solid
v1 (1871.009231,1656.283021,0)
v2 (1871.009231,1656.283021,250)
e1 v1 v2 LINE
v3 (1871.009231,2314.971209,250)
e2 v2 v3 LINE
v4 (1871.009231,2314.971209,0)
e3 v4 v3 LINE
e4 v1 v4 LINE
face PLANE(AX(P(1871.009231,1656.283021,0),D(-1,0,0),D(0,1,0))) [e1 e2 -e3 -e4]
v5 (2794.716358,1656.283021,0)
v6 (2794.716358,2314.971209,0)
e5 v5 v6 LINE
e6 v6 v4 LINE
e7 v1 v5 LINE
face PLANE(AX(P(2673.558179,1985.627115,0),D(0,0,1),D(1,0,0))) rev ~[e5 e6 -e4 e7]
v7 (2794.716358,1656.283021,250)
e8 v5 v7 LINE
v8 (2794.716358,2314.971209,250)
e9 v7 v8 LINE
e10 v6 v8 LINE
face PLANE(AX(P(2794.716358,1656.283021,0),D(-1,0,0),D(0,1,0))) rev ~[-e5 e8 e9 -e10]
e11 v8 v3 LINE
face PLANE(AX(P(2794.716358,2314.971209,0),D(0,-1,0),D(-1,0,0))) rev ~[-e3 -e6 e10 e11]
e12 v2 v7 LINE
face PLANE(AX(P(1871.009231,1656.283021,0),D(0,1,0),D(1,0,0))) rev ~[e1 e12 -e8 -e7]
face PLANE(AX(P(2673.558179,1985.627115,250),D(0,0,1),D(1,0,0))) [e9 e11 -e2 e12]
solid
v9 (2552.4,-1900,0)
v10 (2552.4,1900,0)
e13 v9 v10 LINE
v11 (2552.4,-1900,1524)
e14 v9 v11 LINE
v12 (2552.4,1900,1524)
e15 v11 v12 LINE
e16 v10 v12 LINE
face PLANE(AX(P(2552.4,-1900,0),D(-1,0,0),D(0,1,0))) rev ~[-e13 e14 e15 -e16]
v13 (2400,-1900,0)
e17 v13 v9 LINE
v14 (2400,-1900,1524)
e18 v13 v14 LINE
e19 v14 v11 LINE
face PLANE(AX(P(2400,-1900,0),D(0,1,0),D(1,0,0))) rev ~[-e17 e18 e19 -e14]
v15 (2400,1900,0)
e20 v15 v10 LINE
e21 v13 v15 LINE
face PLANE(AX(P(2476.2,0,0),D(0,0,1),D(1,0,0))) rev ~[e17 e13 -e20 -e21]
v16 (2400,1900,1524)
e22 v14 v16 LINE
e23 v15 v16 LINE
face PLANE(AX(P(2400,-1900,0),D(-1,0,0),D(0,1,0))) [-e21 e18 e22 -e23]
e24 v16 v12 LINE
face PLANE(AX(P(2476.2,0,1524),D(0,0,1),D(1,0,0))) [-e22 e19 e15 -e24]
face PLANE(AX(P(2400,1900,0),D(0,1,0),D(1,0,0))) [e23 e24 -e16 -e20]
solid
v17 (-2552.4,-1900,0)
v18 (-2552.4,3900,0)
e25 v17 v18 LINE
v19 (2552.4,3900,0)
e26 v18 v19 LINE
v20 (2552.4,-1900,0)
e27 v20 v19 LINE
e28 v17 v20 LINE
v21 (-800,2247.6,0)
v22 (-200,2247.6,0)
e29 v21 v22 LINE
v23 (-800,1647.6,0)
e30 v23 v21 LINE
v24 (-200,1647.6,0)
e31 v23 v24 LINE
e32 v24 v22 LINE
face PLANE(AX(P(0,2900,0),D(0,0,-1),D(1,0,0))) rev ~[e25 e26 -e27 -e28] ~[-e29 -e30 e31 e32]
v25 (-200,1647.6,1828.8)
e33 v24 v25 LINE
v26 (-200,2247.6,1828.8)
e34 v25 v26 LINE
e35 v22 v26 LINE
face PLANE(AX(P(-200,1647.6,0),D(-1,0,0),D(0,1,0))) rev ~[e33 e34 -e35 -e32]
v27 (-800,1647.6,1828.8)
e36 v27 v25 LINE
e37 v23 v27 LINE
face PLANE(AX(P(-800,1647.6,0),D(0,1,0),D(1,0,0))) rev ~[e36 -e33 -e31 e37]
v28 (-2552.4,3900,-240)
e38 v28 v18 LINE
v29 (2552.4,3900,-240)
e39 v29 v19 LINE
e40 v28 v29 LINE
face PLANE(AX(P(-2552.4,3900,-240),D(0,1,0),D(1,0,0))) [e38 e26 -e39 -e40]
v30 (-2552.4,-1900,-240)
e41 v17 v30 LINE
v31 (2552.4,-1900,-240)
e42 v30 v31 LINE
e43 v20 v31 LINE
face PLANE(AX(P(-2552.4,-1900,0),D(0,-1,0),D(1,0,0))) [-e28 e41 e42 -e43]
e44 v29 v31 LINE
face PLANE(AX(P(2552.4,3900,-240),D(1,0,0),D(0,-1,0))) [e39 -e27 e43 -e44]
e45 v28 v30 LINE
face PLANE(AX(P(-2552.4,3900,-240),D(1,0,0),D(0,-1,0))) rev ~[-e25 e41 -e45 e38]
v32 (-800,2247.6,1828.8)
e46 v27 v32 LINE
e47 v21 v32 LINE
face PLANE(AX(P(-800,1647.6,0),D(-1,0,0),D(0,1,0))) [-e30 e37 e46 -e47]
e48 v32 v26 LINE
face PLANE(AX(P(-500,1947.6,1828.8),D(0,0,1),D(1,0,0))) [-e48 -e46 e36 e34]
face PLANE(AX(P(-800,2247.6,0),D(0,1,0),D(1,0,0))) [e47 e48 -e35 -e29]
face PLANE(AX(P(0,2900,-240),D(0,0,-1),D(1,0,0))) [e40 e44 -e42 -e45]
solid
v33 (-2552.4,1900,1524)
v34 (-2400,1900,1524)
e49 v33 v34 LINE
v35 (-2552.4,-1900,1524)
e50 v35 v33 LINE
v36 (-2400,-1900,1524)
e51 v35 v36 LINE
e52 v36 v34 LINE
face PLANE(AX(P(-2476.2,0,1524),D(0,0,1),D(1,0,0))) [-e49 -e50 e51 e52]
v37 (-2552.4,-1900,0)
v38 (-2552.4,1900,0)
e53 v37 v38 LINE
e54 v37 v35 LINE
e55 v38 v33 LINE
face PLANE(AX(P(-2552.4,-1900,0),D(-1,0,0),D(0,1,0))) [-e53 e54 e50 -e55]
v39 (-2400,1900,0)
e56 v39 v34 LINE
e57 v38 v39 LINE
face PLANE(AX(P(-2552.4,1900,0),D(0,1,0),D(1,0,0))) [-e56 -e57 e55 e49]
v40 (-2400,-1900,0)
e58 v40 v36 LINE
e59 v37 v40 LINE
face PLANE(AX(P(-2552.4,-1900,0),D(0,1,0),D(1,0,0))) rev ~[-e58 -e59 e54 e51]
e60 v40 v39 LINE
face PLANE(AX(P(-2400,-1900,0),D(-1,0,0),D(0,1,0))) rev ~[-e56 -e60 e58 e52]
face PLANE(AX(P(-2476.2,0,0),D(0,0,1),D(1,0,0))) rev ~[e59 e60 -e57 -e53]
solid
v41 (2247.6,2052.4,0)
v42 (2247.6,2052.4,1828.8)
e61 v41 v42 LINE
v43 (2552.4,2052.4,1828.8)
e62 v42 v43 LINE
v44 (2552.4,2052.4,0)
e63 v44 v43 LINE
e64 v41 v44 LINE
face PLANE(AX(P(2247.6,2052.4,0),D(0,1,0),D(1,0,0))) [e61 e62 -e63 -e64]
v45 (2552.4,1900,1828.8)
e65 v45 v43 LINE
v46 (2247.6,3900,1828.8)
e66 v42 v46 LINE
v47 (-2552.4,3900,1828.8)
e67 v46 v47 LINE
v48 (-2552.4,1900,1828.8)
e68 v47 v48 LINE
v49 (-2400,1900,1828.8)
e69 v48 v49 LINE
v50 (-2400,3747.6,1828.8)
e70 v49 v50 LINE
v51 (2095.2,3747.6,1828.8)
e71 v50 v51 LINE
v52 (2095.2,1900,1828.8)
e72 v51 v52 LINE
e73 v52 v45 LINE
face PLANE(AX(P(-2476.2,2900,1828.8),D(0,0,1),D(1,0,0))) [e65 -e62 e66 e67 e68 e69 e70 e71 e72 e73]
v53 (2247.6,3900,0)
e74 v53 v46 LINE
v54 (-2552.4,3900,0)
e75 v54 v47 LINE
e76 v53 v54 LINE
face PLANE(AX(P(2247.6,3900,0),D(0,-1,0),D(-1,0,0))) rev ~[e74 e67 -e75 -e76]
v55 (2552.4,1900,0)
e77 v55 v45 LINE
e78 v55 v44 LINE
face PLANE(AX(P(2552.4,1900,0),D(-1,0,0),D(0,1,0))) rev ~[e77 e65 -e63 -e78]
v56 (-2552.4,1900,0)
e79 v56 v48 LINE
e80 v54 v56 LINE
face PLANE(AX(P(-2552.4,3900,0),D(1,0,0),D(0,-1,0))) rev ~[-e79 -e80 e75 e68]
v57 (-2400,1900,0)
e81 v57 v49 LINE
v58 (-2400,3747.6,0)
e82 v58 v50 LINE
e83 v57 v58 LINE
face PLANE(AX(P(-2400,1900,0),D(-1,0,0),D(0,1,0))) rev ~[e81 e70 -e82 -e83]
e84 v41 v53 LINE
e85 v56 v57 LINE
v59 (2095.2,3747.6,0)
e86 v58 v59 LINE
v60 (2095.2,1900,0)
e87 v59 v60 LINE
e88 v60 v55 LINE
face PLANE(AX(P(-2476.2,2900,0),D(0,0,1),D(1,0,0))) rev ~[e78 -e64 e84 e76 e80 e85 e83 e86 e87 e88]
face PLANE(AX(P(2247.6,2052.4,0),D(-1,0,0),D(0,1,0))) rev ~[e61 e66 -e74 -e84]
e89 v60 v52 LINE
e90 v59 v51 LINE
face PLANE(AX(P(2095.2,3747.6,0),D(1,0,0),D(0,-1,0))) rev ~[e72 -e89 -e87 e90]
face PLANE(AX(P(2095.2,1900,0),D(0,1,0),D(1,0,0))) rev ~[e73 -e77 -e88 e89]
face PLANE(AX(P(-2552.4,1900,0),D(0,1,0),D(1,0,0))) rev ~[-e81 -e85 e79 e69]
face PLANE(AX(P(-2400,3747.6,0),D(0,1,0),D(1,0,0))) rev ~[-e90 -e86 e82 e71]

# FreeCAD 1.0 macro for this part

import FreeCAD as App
import Part
import Sketcher
from FreeCAD import Vector

doc = App.newDocument("Part")
body = doc.addObject("PartDesign::Body", "Body")

sketch1 = body.newObject("Sketcher::SketchObject", "Sketch")
sketch1.AttachmentSupport = (doc.getObject("XY_Plane"), [""])
sketch1.MapMode = "FlatFace"
sketch1.addGeometry(Part.LineSegment(Vector(-2552, 1900, 0), Vector(-2552, -1900, 0)), False)
sketch1.addGeometry(Part.LineSegment(Vector(-2552, -1900, 0), Vector(-2400, -1900, 0)), False)
sketch1.addGeometry(Part.LineSegment(Vector(-2400, -1900, 0), Vector(-2400, 1900, 0)), False)
sketch1.addGeometry(Part.LineSegment(Vector(-2400, 1900, 0), Vector(-2552, 1900, 0)), False)
sketch1.addConstraint(Sketcher.Constraint("Coincident", 0, 2, 1, 1))
sketch1.addConstraint(Sketcher.Constraint("Coincident", 1, 2, 2, 1))
sketch1.addConstraint(Sketcher.Constraint("Coincident", 2, 2, 3, 1))
sketch1.addConstraint(Sketcher.Constraint("Coincident", 3, 2, 0, 1))
sketch1.addConstraint(Sketcher.Constraint("Vertical", 0))
sketch1.addConstraint(Sketcher.Constraint("Horizontal", 1))
sketch1.addConstraint(Sketcher.Constraint("Vertical", 2))
sketch1.addConstraint(Sketcher.Constraint("Horizontal", 3))
sketch1.addConstraint(Sketcher.Constraint("DistanceY", 0, 2, 0, 1, 3800.0))
sketch1.addConstraint(Sketcher.Constraint("DistanceX", 1, 1, 1, 2, 152.4))
sketch1.addConstraint(Sketcher.Constraint("DistanceY", 0, 2, -1, 1, 1900.0))
sketch1.addConstraint(Sketcher.Constraint("DistanceX", 1, 2, -1, 1, 2400.0))
pad1 = body.newObject("PartDesign::Pad", "Pad")
pad1.Profile = sketch1
pad1.Length = 1524
body2 = doc.addObject("PartDesign::Body", "Body001")

sketch2 = body2.newObject("Sketcher::SketchObject", "Sketch001")
sketch2.AttachmentSupport = (doc.getObject("XY_Plane001"), [""])
sketch2.MapMode = "FlatFace"
sketch2.addGeometry(Part.LineSegment(Vector(2400, 1900, 0), Vector(2400, -1900, 0)), False)
sketch2.addGeometry(Part.LineSegment(Vector(2400, -1900, 0), Vector(2552, -1900, 0)), False)
sketch2.addGeometry(Part.LineSegment(Vector(2552, -1900, 0), Vector(2552, 1900, 0)), False)
sketch2.addGeometry(Part.LineSegment(Vector(2552, 1900, 0), Vector(2400, 1900, 0)), False)
sketch2.addConstraint(Sketcher.Constraint("Coincident", 0, 2, 1, 1))
sketch2.addConstraint(Sketcher.Constraint("Coincident", 1, 2, 2, 1))
sketch2.addConstraint(Sketcher.Constraint("Coincident", 2, 2, 3, 1))
sketch2.addConstraint(Sketcher.Constraint("Coincident", 3, 2, 0, 1))
sketch2.addConstraint(Sketcher.Constraint("Vertical", 0))
sketch2.addConstraint(Sketcher.Constraint("Horizontal", 1))
sketch2.addConstraint(Sketcher.Constraint("Vertical", 2))
sketch2.addConstraint(Sketcher.Constraint("Horizontal", 3))
sketch2.addConstraint(Sketcher.Constraint("DistanceY", 0, 2, 0, 1, 3800.0))
sketch2.addConstraint(Sketcher.Constraint("DistanceX", 1, 1, 1, 2, 152.4))
sketch2.addConstraint(Sketcher.Constraint("DistanceX", -1, 1, 0, 2, 2400.0))
sketch2.addConstraint(Sketcher.Constraint("DistanceY", 0, 2, -1, 1, 1900.0))
pad2 = body2.newObject("PartDesign::Pad", "Pad001")
pad2.Profile = sketch2
pad2.Length = 1524
body3 = doc.addObject("PartDesign::Body", "Body002")

sketch3 = body3.newObject("Sketcher::SketchObject", "Sketch002")
sketch3.AttachmentSupport = (doc.getObject("XY_Plane002"), [""])
sketch3.MapMode = "FlatFace"
sketch3.addGeometry(Part.LineSegment(Vector(-2552, -1900, 0), Vector(-2552, 1900, 0)), False)
sketch3.addGeometry(Part.LineSegment(Vector(-2552, 1900, 0), Vector(2552, 1900, 0)), False)
sketch3.addGeometry(Part.LineSegment(Vector(2552, 1900, 0), Vector(2552, -1900, 0)), False)
sketch3.addGeometry(Part.LineSegment(Vector(2552, -1900, 0), Vector(-2552, -1900, 0)), False)
sketch3.addConstraint(Sketcher.Constraint("Coincident", 0, 2, 1, 1))
sketch3.addConstraint(Sketcher.Constraint("Coincident", 1, 2, 2, 1))
sketch3.addConstraint(Sketcher.Constraint("Coincident", 2, 2, 3, 1))
sketch3.addConstraint(Sketcher.Constraint("Coincident", 3, 2, 0, 1))
sketch3.addConstraint(Sketcher.Constraint("Vertical", 0))
sketch3.addConstraint(Sketcher.Constraint("Horizontal", 1))
sketch3.addConstraint(Sketcher.Constraint("Vertical", 2))
sketch3.addConstraint(Sketcher.Constraint("Horizontal", 3))
sketch3.addConstraint(Sketcher.Constraint("Symmetric", 0, 2, 2, 2, -1, 1))
sketch3.addConstraint(Sketcher.Constraint("DistanceY", 0, 1, 0, 2, 3800.0))
sketch3.addConstraint(Sketcher.Constraint("DistanceX", 1, 1, 1, 2, 5104.8))
pad3 = body3.newObject("PartDesign::Pad", "Pad002")
pad3.Profile = sketch3
pad3.Length = 240
pad3.Reversed = True

sketch4 = body3.newObject("Sketcher::SketchObject", "Sketch003")
sketch4.AttachmentSupport = (doc.getObject("XY_Plane002"), [""])
sketch4.MapMode = "FlatFace"
sketch4.AttachmentOffset = App.Placement(Vector(0, 0, -240), App.Rotation())
sketch4.addGeometry(Part.LineSegment(Vector(-2552, 1900, 0), Vector(-2552, 3900, 0)), False)
sketch4.addGeometry(Part.LineSegment(Vector(-2552, 3900, 0), Vector(2552, 3900, 0)), False)
sketch4.addGeometry(Part.LineSegment(Vector(2552, 3900, 0), Vector(2552, 1900, 0)), False)
sketch4.addGeometry(Part.LineSegment(Vector(2552, 1900, 0), Vector(-2552, 1900, 0)), False)
sketch4.addConstraint(Sketcher.Constraint("Coincident", 0, 2, 1, 1))
sketch4.addConstraint(Sketcher.Constraint("Coincident", 1, 2, 2, 1))
sketch4.addConstraint(Sketcher.Constraint("Coincident", 2, 2, 3, 1))
sketch4.addConstraint(Sketcher.Constraint("Coincident", 3, 2, 0, 1))
sketch4.addConstraint(Sketcher.Constraint("Vertical", 0))
sketch4.addConstraint(Sketcher.Constraint("Horizontal", 1))
sketch4.addConstraint(Sketcher.Constraint("Vertical", 2))
sketch4.addConstraint(Sketcher.Constraint("Horizontal", 3))
sketch4.addConstraint(Sketcher.Constraint("DistanceY", 0, 1, 0, 2, 2000.0))
sketch4.addConstraint(Sketcher.Constraint("DistanceX", 1, 1, 1, 2, 5104.8))
sketch4.addConstraint(Sketcher.Constraint("DistanceY", -1, 1, 0, 2, 3900.0))
sketch4.addConstraint(Sketcher.Constraint("DistanceX", 0, 2, -1, 1, 2552.4))
pad4 = body3.newObject("PartDesign::Pad", "Pad003")
pad4.Profile = sketch4
pad4.Length = 240

sketch5 = body3.newObject("Sketcher::SketchObject", "Sketch004")
sketch5.AttachmentSupport = (doc.getObject("XY_Plane002"), [""])
sketch5.MapMode = "FlatFace"
sketch5.addGeometry(Part.LineSegment(Vector(-800, 2248, 0), Vector(-800, 1648, 0)), False)
sketch5.addGeometry(Part.LineSegment(Vector(-800, 1648, 0), Vector(-200, 1648, 0)), False)
sketch5.addGeometry(Part.LineSegment(Vector(-200, 1648, 0), Vector(-200, 2248, 0)), False)
sketch5.addGeometry(Part.LineSegment(Vector(-200, 2248, 0), Vector(-800, 2248, 0)), False)
sketch5.addConstraint(Sketcher.Constraint("Coincident", 0, 2, 1, 1))
sketch5.addConstraint(Sketcher.Constraint("Coincident", 1, 2, 2, 1))
sketch5.addConstraint(Sketcher.Constraint("Coincident", 2, 2, 3, 1))
sketch5.addConstraint(Sketcher.Constraint("Coincident", 3, 2, 0, 1))
sketch5.addConstraint(Sketcher.Constraint("Vertical", 0))
sketch5.addConstraint(Sketcher.Constraint("Horizontal", 1))
sketch5.addConstraint(Sketcher.Constraint("Vertical", 2))
sketch5.addConstraint(Sketcher.Constraint("Horizontal", 3))
sketch5.addConstraint(Sketcher.Constraint("Equal", 3, 0))
sketch5.addConstraint(Sketcher.Constraint("DistanceX", 1, 1, 1, 2, 600.0))
sketch5.addConstraint(Sketcher.Constraint("DistanceX", 0, 2, -1, 1, 800.0))
sketch5.addConstraint(Sketcher.Constraint("DistanceY", -1, 1, 0, 2, 1647.6))
pad5 = body3.newObject("PartDesign::Pad", "Pad004")
pad5.Profile = sketch5
pad5.Length = 1828.8
body4 = doc.addObject("PartDesign::Body", "Body003")

sketch6 = body4.newObject("Sketcher::SketchObject", "Sketch005")
sketch6.AttachmentSupport = (doc.getObject("XY_Plane003"), [""])
sketch6.MapMode = "FlatFace"
sketch6.addGeometry(Part.LineSegment(Vector(2795, 1656, 0), Vector(2795, 2315, 0)), False)
sketch6.addGeometry(Part.LineSegment(Vector(2795, 2315, 0), Vector(1871, 2315, 0)), False)
sketch6.addGeometry(Part.LineSegment(Vector(1871, 2315, 0), Vector(1871, 1656, 0)), False)
sketch6.addGeometry(Part.LineSegment(Vector(1871, 1656, 0), Vector(2795, 1656, 0)), False)
sketch6.addConstraint(Sketcher.Constraint("Coincident", 0, 2, 1, 1))
sketch6.addConstraint(Sketcher.Constraint("Coincident", 1, 2, 2, 1))
sketch6.addConstraint(Sketcher.Constraint("Coincident", 2, 2, 3, 1))
sketch6.addConstraint(Sketcher.Constraint("Coincident", 3, 2, 0, 1))
sketch6.addConstraint(Sketcher.Constraint("Vertical", 0))
sketch6.addConstraint(Sketcher.Constraint("Horizontal", 1))
sketch6.addConstraint(Sketcher.Constraint("Vertical", 2))
sketch6.addConstraint(Sketcher.Constraint("Horizontal", 3))
sketch6.addConstraint(Sketcher.Constraint("DistanceX", 1, 2, 1, 1, 923.707128))
sketch6.addConstraint(Sketcher.Constraint("DistanceY", 0, 1, 0, 2, 658.688188))
sketch6.addConstraint(Sketcher.Constraint("DistanceX", -1, 1, 0, 2, 2794.716358))
sketch6.addConstraint(Sketcher.Constraint("DistanceY", -1, 1, 0, 2, 2314.971209))
pad6 = body4.newObject("PartDesign::Pad", "Pad005")
pad6.Profile = sketch6
pad6.Length = 250
body5 = doc.addObject("PartDesign::Body", "Body004")

sketch7 = body5.newObject("Sketcher::SketchObject", "Sketch006")
sketch7.AttachmentSupport = (doc.getObject("XY_Plane004"), [""])
sketch7.MapMode = "FlatFace"
sketch7.addGeometry(Part.LineSegment(Vector(-2552, 3900, 0), Vector(-2552, 1900, 0)), False)
sketch7.addGeometry(Part.LineSegment(Vector(-2552, 1900, 0), Vector(-2400, 1900, 0)), False)
sketch7.addGeometry(Part.LineSegment(Vector(-2400, 1900, 0), Vector(-2400, 3748, 0)), False)
sketch7.addGeometry(Part.LineSegment(Vector(-2400, 3748, 0), Vector(2095, 3748, 0)), False)
sketch7.addGeometry(Part.LineSegment(Vector(2095, 3748, 0), Vector(2095, 1900, 0)), False)
sketch7.addGeometry(Part.LineSegment(Vector(2095, 1900, 0), Vector(2552, 1900, 0)), False)
sketch7.addGeometry(Part.LineSegment(Vector(2552, 1900, 0), Vector(2552, 2052, 0)), False)
sketch7.addGeometry(Part.LineSegment(Vector(2552, 2052, 0), Vector(2248, 2052, 0)), False)
sketch7.addGeometry(Part.LineSegment(Vector(2248, 2052, 0), Vector(2248, 3900, 0)), False)
sketch7.addGeometry(Part.LineSegment(Vector(2248, 3900, 0), Vector(-2552, 3900, 0)), False)
sketch7.addConstraint(Sketcher.Constraint("Coincident", 0, 2, 1, 1))
sketch7.addConstraint(Sketcher.Constraint("Coincident", 1, 2, 2, 1))
sketch7.addConstraint(Sketcher.Constraint("Coincident", 2, 2, 3, 1))
sketch7.addConstraint(Sketcher.Constraint("Coincident", 3, 2, 4, 1))
sketch7.addConstraint(Sketcher.Constraint("Coincident", 4, 2, 5, 1))
sketch7.addConstraint(Sketcher.Constraint("Coincident", 5, 2, 6, 1))
sketch7.addConstraint(Sketcher.Constraint("Coincident", 6, 2, 7, 1))
sketch7.addConstraint(Sketcher.Constraint("Coincident", 7, 2, 8, 1))
sketch7.addConstraint(Sketcher.Constraint("Coincident", 8, 2, 9, 1))
sketch7.addConstraint(Sketcher.Constraint("Coincident", 9, 2, 0, 1))
sketch7.addConstraint(Sketcher.Constraint("Vertical", 0))
sketch7.addConstraint(Sketcher.Constraint("Horizontal", 1))
sketch7.addConstraint(Sketcher.Constraint("Vertical", 2))
sketch7.addConstraint(Sketcher.Constraint("Horizontal", 3))
sketch7.addConstraint(Sketcher.Constraint("Vertical", 4))
sketch7.addConstraint(Sketcher.Constraint("Horizontal", 5))
sketch7.addConstraint(Sketcher.Constraint("Vertical", 6))
sketch7.addConstraint(Sketcher.Constraint("Horizontal", 7))
sketch7.addConstraint(Sketcher.Constraint("Vertical", 8))
sketch7.addConstraint(Sketcher.Constraint("Horizontal", 9))
sketch7.addConstraint(Sketcher.Constraint("Symmetric", 0, 2, 5, 2, -2))
sketch7.addConstraint(Sketcher.Constraint("Equal", 1, 6))
sketch7.addConstraint(Sketcher.Constraint("Equal", 4, 8))
sketch7.addConstraint(Sketcher.Constraint("DistanceX", 9, 2, 9, 1, 4800.0))
sketch7.addConstraint(Sketcher.Constraint("DistanceY", 0, 2, 0, 1, 2000.0))
sketch7.addConstraint(Sketcher.Constraint("DistanceX", 1, 1, 1, 2, 152.4))
sketch7.addConstraint(Sketcher.Constraint("DistanceX", 3, 1, 3, 2, 4495.2))
sketch7.addConstraint(Sketcher.Constraint("DistanceX", 5, 1, 5, 2, 457.2))
sketch7.addConstraint(Sketcher.Constraint("DistanceY", -1, 1, 0, 2, 1900.0))
pad7 = body5.newObject("PartDesign::Pad", "Pad006")
pad7.Profile = sketch7
pad7.Length = 1828.8

doc.recompute()
